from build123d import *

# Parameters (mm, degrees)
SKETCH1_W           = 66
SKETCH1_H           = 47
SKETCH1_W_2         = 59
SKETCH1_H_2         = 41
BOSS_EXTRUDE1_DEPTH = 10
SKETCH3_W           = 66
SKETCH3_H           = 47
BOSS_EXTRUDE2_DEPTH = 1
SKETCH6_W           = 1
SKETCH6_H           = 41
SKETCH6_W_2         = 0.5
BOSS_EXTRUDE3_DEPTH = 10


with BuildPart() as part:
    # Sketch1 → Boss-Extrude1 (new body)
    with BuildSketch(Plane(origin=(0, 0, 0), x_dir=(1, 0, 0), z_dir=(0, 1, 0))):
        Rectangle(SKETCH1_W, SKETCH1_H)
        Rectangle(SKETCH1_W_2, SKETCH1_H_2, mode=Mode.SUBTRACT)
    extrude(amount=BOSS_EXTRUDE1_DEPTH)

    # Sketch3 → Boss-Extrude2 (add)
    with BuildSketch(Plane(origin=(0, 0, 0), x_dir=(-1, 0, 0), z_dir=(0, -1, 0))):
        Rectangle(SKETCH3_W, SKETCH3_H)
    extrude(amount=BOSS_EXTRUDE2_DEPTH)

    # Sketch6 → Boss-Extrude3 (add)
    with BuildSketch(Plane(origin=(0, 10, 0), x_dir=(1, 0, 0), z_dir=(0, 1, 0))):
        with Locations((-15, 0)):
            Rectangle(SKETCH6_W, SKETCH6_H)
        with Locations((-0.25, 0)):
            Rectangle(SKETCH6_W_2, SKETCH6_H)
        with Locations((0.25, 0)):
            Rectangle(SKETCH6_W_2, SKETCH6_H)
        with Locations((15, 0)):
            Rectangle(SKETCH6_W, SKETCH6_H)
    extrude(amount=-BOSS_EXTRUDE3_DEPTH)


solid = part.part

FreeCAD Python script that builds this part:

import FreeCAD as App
import Part
import Sketcher

V = App.Vector
Q = App.Units.Quantity

doc = App.newDocument("Part")
body = doc.addObject("PartDesign::Body", "Body")

# Sketch on XZ plane
sketch1 = doc.addObject("Sketcher::SketchObject", "Sketch")
body.addObject(sketch1)
sketch1.AttachmentSupport = (doc.XZ_Plane, [""])
sketch1.MapMode = "FlatFace"
sketch1.addGeometry([
    Part.LineSegment(V(-33, -23.5, 0), V(-33, 23.5, 0)),  # 0
    Part.LineSegment(V(-33, 23.5, 0), V(33, 23.5, 0)),  # 1
    Part.LineSegment(V(33, 23.5, 0), V(33, -23.5, 0)),  # 2
    Part.LineSegment(V(33, -23.5, 0), V(-33, -23.5, 0)),  # 3
    Part.LineSegment(V(29.5, 20.5, 0), V(-29.5, 20.5, 0)),  # 4
    Part.LineSegment(V(-29.5, 20.5, 0), V(-29.5, -20.5, 0)),  # 5
    Part.LineSegment(V(-29.5, -20.5, 0), V(29.5, -20.5, 0)),  # 6
    Part.LineSegment(V(29.5, -20.5, 0), V(29.5, 20.5, 0)),  # 7
], False)
sketch1.addConstraint([
    Sketcher.Constraint("Coincident", 0, 2, 1, 1),
    Sketcher.Constraint("Coincident", 1, 2, 2, 1),
    Sketcher.Constraint("Coincident", 2, 2, 3, 1),
    Sketcher.Constraint("Coincident", 3, 2, 0, 1),
    Sketcher.Constraint("Coincident", 4, 2, 5, 1),
    Sketcher.Constraint("Coincident", 5, 2, 6, 1),
    Sketcher.Constraint("Coincident", 6, 2, 7, 1),
    Sketcher.Constraint("Coincident", 7, 2, 4, 1),
    Sketcher.Constraint("Vertical", 0),
    Sketcher.Constraint("Horizontal", 1),
    Sketcher.Constraint("Vertical", 2),
    Sketcher.Constraint("Horizontal", 3),
    Sketcher.Constraint("Horizontal", 4),
    Sketcher.Constraint("Vertical", 5),
    Sketcher.Constraint("Horizontal", 6),
    Sketcher.Constraint("Vertical", 7),
    Sketcher.Constraint("Symmetric", 0, 2, 2, 2, -1, 1),
    Sketcher.Constraint("Symmetric", 4, 2, 6, 2, -1, 1),
    Sketcher.Constraint("DistanceX", 1, 1, 1, 2, Q("66 mm")),
    Sketcher.Constraint("DistanceX", 4, 2, 4, 1, Q("59 mm")),
    Sketcher.Constraint("DistanceY", 0, 1, 0, 2, Q("47 mm")),
    Sketcher.Constraint("DistanceY", 5, 2, 5, 1, Q("41 mm")),
])
pad1 = doc.addObject("PartDesign::Pad", "Pad")
body.addObject(pad1)
pad1.Profile = sketch1
pad1.Length = 10
pad1.Reversed = True

# Sketch on XZ plane
sketch2 = doc.addObject("Sketcher::SketchObject", "Sketch001")
body.addObject(sketch2)
sketch2.AttachmentSupport = (doc.XZ_Plane, [""])
sketch2.MapMode = "FlatFace"
sketch2.addGeometry([
    Part.LineSegment(V(33, -23.5, 0), V(33, 23.5, 0)),
    Part.LineSegment(V(33, 23.5, 0), V(-33, 23.5, 0)),
    Part.LineSegment(V(-33, 23.5, 0), V(-33, -23.5, 0)),
    Part.LineSegment(V(-33, -23.5, 0), V(33, -23.5, 0)),
], False)
sketch2.addConstraint([
    Sketcher.Constraint("Coincident", 0, 2, 1, 1),
    Sketcher.Constraint("Coincident", 1, 2, 2, 1),
    Sketcher.Constraint("Coincident", 2, 2, 3, 1),
    Sketcher.Constraint("Coincident", 3, 2, 0, 1),
    Sketcher.Constraint("Vertical", 0),
    Sketcher.Constraint("Horizontal", 1),
    Sketcher.Constraint("Vertical", 2),
    Sketcher.Constraint("Horizontal", 3),
    Sketcher.Constraint("Symmetric", 0, 2, 2, 2, -1, 1),
    Sketcher.Constraint("DistanceX", 1, 2, 1, 1, Q("66 mm")),
    Sketcher.Constraint("DistanceY", 0, 1, 0, 2, Q("47 mm")),
])
pad2 = doc.addObject("PartDesign::Pad", "Pad001")
body.addObject(pad2)
pad2.Profile = sketch2
pad2.Length = 1

# Sketch on XZ plane
sketch3 = doc.addObject("Sketcher::SketchObject", "Sketch002")
body.addObject(sketch3)
sketch3.AttachmentSupport = (doc.XZ_Plane, [""])
sketch3.MapMode = "FlatFace"
sketch3.AttachmentOffset = App.Placement(V(0, 0, -10), App.Rotation())
sketch3.addGeometry([
    Part.LineSegment(V(-15.5, -20.5, 0), V(-15.5, 20.5, 0)),  # 0
    Part.LineSegment(V(-15.5, 20.5, 0), V(-14.5, 20.5, 0)),  # 1
    Part.LineSegment(V(-14.5, 20.5, 0), V(-14.5, -20.5, 0)),  # 2
    Part.LineSegment(V(-14.5, -20.5, 0), V(-15.5, -20.5, 0)),  # 3
    Part.LineSegment(V(-0.5, -20.5, 0), V(-0.5, 20.5, 0)),  # 4
    Part.LineSegment(V(-0.5, 20.5, 0), V(0.5, 20.5, 0)),  # 5
    Part.LineSegment(V(0.5, 20.5, 0), V(0.5, -20.5, 0)),  # 6
    Part.LineSegment(V(0.5, -20.5, 0), V(-0.5, -20.5, 0)),  # 7
    Part.LineSegment(V(14.5, -20.5, 0), V(14.5, 20.5, 0)),  # 8
    Part.LineSegment(V(14.5, 20.5, 0), V(15.5, 20.5, 0)),  # 9
    Part.LineSegment(V(15.5, 20.5, 0), V(15.5, -20.5, 0)),  # 10
    Part.LineSegment(V(15.5, -20.5, 0), V(14.5, -20.5, 0)),  # 11
], False)
sketch3.addConstraint([
    Sketcher.Constraint("Coincident", 0, 2, 1, 1),
    Sketcher.Constraint("Coincident", 1, 2, 2, 1),
    Sketcher.Constraint("Coincident", 2, 2, 3, 1),
    Sketcher.Constraint("Coincident", 3, 2, 0, 1),
    Sketcher.Constraint("Coincident", 4, 2, 5, 1),
    Sketcher.Constraint("Coincident", 5, 2, 6, 1),
    Sketcher.Constraint("Coincident", 6, 2, 7, 1),
    Sketcher.Constraint("Coincident", 7, 2, 4, 1),
    Sketcher.Constraint("Coincident", 8, 2, 9, 1),
    Sketcher.Constraint("Coincident", 9, 2, 10, 1),
    Sketcher.Constraint("Coincident", 10, 2, 11, 1),
    Sketcher.Constraint("Coincident", 11, 2, 8, 1),
    Sketcher.Constraint("Vertical", 0),
    Sketcher.Constraint("Horizontal", 1),
    Sketcher.Constraint("Vertical", 2),
    Sketcher.Constraint("Horizontal", 3),
    Sketcher.Constraint("Vertical", 4),
    Sketcher.Constraint("Horizontal", 5),
    Sketcher.Constraint("Vertical", 6),
    Sketcher.Constraint("Horizontal", 7),
    Sketcher.Constraint("Vertical", 8),
    Sketcher.Constraint("Horizontal", 9),
    Sketcher.Constraint("Vertical", 10),
    Sketcher.Constraint("Horizontal", 11),
    Sketcher.Constraint("Symmetric", 4, 2, 6, 2, -1, 1),
    Sketcher.Constraint("Symmetric", 2, 2, 8, 2, -1, 1),
    Sketcher.Constraint("Symmetric", 0, 2, 10, 2, -1, 1),
    Sketcher.Constraint("Horizontal", 1, 2, 4, 2),
    Sketcher.Constraint("Horizontal", 3, 2, 6, 2),
    Sketcher.Constraint("Equal", 3, 5),
    Sketcher.Constraint("DistanceX", 1, 1, 1, 2, Q("1 mm")),
    Sketcher.Constraint("DistanceY", 0, 1, 0, 2, Q("41 mm")),
    Sketcher.Constraint("DistanceX", 1, 2, 4, 2, Q("14 mm")),
])
pad3 = doc.addObject("PartDesign::Pad", "Pad002")
body.addObject(pad3)
pad3.Profile = sketch3
pad3.Length = 10

doc.recompute()
